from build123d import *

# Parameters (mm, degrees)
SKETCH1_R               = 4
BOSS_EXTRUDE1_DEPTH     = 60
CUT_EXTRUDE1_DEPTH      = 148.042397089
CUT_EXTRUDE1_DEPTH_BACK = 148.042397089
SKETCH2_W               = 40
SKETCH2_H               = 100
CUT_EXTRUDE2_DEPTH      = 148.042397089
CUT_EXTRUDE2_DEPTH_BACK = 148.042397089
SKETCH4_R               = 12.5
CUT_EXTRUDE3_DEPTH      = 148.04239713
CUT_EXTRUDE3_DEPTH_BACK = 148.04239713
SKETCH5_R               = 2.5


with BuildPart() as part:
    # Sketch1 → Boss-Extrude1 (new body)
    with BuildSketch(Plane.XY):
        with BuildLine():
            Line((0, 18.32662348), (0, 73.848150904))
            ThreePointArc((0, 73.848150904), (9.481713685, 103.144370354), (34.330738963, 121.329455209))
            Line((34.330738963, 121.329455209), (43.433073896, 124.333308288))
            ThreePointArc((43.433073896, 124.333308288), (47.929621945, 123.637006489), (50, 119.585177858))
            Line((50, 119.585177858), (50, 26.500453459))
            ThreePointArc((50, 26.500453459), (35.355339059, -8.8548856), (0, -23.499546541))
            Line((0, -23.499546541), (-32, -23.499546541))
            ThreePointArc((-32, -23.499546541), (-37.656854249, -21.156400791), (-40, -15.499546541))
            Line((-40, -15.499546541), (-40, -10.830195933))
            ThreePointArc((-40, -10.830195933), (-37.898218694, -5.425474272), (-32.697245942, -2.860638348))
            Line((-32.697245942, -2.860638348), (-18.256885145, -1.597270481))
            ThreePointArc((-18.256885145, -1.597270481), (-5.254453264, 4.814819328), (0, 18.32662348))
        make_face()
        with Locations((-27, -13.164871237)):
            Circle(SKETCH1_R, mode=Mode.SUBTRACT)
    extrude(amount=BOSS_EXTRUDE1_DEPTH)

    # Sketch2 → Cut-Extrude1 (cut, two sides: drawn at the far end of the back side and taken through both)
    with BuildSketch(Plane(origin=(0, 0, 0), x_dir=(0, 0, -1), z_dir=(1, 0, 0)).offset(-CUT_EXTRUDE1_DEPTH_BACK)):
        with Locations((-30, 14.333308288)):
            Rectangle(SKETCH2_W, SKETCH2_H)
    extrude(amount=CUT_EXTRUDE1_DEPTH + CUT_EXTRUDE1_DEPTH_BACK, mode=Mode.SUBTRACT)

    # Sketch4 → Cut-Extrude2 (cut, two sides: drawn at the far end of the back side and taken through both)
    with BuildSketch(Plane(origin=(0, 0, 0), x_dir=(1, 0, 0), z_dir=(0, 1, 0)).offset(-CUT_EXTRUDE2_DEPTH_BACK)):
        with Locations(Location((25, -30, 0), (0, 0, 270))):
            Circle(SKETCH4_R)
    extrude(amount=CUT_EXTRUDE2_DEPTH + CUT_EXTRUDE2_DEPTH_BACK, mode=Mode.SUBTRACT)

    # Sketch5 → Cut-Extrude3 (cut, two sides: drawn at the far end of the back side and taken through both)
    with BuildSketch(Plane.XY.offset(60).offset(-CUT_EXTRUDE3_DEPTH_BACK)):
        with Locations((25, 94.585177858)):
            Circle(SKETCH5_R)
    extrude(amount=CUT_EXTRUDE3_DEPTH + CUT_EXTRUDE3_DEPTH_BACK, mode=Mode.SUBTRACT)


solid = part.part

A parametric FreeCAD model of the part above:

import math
import FreeCAD as App
import Part
import Sketcher
Q = App.Units.Quantity


def add_polygon(sketch, points):
    """Adds a closed chain of lines whose ends are joined by coincident constraints."""
    first, n = sketch.GeometryCount, len(points)
    for a, b in zip(points, points[1:] + points[:1]):
        sketch.addGeometry(Part.LineSegment(App.Vector(*a, 0), App.Vector(*b, 0)), False)
    for i in range(n):
        sketch.addConstraint(Sketcher.Constraint("Coincident", first + i, 2, first + (i + 1) % n, 1))

doc = App.newDocument("Part")
body = doc.addObject("PartDesign::Body", "Body")

# Sketch on XY plane
sketch1 = body.newObject("Sketcher::SketchObject", "Sketch")
sketch1.AttachmentSupport = (doc.getObject("XY_Plane"), [""])
sketch1.MapMode = "FlatFace"
sketch1.addGeometry([
    Part.LineSegment(App.Vector(0, 73.8, 0), App.Vector(0, 18.3, 0)),  # 0
    Part.ArcOfCircle(Part.Circle(App.Vector(-20, 18.3, 0), App.Vector(0, 0, 1), 20), math.radians(-85), math.radians(0)),  # 1
    Part.LineSegment(App.Vector(-18.3, -1.6, 0), App.Vector(-32.7, -2.9, 0)),  # 2
    Part.ArcOfCircle(Part.Circle(App.Vector(-32, -10.8, 0), App.Vector(0, 0, 1), 8), math.radians(95), math.radians(180)),  # 3
    Part.LineSegment(App.Vector(-40, -10.8, 0), App.Vector(-40, -15.5, 0)),  # 4
    Part.ArcOfCircle(Part.Circle(App.Vector(-32, -15.5, 0), App.Vector(0, 0, 1), 8), math.radians(180), math.radians(270)),  # 5
    Part.LineSegment(App.Vector(-32, -23.5, 0), App.Vector(0, -23.5, 0)),  # 6
    Part.ArcOfCircle(Part.Circle(App.Vector(0, 26.5, 0), App.Vector(0, 0, 1), 50), math.radians(-90), math.radians(0)),  # 7
    Part.LineSegment(App.Vector(50, 26.5, 0), App.Vector(50, 119.6, 0)),  # 8
    Part.ArcOfCircle(Part.Circle(App.Vector(45, 119.6, 0), App.Vector(0, 0, 1), 5), math.radians(0), math.radians(108)),  # 9
    Part.LineSegment(App.Vector(43.4, 124.3, 0), App.Vector(34.3, 121.3, 0)),  # 10
    Part.ArcOfCircle(Part.Circle(App.Vector(50, 73.8, 0), App.Vector(0, 0, 1), 50), math.radians(108), math.radians(180)),  # 11
    Part.Circle(App.Vector(-27, -13.2, 0), App.Vector(0, 0, 1), 4),  # 12
], False)
sketch1.addConstraint([
    Sketcher.Constraint("Tangent", 0, 2, 1, 2),
    Sketcher.Constraint("Tangent", 1, 1, 2, 1),
    Sketcher.Constraint("Tangent", 2, 2, 3, 1),
    Sketcher.Constraint("Tangent", 3, 2, 4, 1),
    Sketcher.Constraint("Tangent", 4, 2, 5, 1),
    Sketcher.Constraint("Tangent", 5, 2, 6, 1),
    Sketcher.Constraint("Tangent", 6, 2, 7, 1),
    Sketcher.Constraint("Tangent", 7, 2, 8, 1),
    Sketcher.Constraint("Tangent", 8, 2, 9, 1),
    Sketcher.Constraint("Tangent", 9, 2, 10, 1),
    Sketcher.Constraint("Tangent", 10, 2, 11, 1),
    Sketcher.Constraint("Tangent", 11, 2, 0, 1),
    Sketcher.Constraint("Vertical", 0),
    Sketcher.Constraint("Vertical", 4),
    Sketcher.Constraint("Horizontal", 6),
    Sketcher.Constraint("Vertical", 8),
    Sketcher.Constraint("Equal", 3, 5),
    Sketcher.Constraint("Equal", 7, 11),
    Sketcher.Constraint("PointOnObject", 7, 3, -2),
    Sketcher.Constraint("PointOnObject", 0, 2, -2),
    Sketcher.Constraint("Diameter", 12, Q("8 mm")),
    Sketcher.Constraint("Radius", 1, Q("20 mm")),
    Sketcher.Constraint("Radius", 3, Q("8 mm")),
    Sketcher.Constraint("Radius", 7, Q("50 mm")),
    Sketcher.Constraint("Radius", 9, Q("5 mm")),
    Sketcher.Constraint("DistanceX", 6, 1, 6, 2, Q("32 mm")),
    Sketcher.Constraint("Angle", 2, Q("-175 deg")),
    Sketcher.Constraint("DistanceX", 12, 3, -1, 1, Q("27 mm")),
    Sketcher.Constraint("DistanceY", 7, 2, 10, 2, Q("94.829002 mm")),
    Sketcher.Constraint("DistanceY", 4, 2, 4, 1, Q("4.669351 mm")),
    Sketcher.Constraint("DistanceY", 12, 3, 1, 1, Q("11.567601 mm")),
    Sketcher.Constraint("DistanceY", 0, 2, 0, 1, Q("55.521527 mm")),
    Sketcher.Constraint("DistanceY", -1, 1, 11, 3, Q("73.848151 mm")),
])
pad1 = body.newObject("PartDesign::Pad", "Pad")
pad1.Profile = sketch1
pad1.Length = 60

# Sketch on YZ plane
sketch2 = body.newObject("Sketcher::SketchObject", "Sketch001")
sketch2.AttachmentSupport = (doc.getObject("YZ_Plane"), [""])
sketch2.MapMode = "FlatFace"
add_polygon(sketch2, [(64, 50), (-36, 50), (-36, 10), (64, 10)])  # lines 0-3
sketch2.addConstraint([
    Sketcher.Constraint("Horizontal", 0),
    Sketcher.Constraint("Vertical", 1),
    Sketcher.Constraint("Horizontal", 2),
    Sketcher.Constraint("Vertical", 3),
    Sketcher.Constraint("DistanceX", 0, 2, 0, 1, Q("100 mm")),
    Sketcher.Constraint("DistanceY", 1, 2, 1, 1, Q("40 mm")),
    Sketcher.Constraint("DistanceY", -1, 1, 0, 2, Q("50 mm")),
    Sketcher.Constraint("DistanceX", 0, 2, -1, 1, Q("35.666692 mm")),
])
pocket1 = body.newObject("PartDesign::Pocket", "Pocket")
pocket1.Profile = sketch2
pocket1.Type = "ThroughAll"
pocket1.Midplane = True

# Sketch on XZ plane
sketch3 = body.newObject("Sketcher::SketchObject", "Sketch002")
sketch3.AttachmentSupport = (doc.getObject("XZ_Plane"), [""])
sketch3.MapMode = "FlatFace"
sketch3.addGeometry(Part.Circle(App.Vector(25, 30, 0), App.Vector(0, 0, 1), 12), False)
sketch3.addConstraint([
    Sketcher.Constraint("Diameter", 0, Q("25 mm")),
    Sketcher.Constraint("DistanceX", -1, 1, 0, 3, Q("25 mm")),
    Sketcher.Constraint("DistanceY", -1, 1, 0, 3, Q("30 mm")),
])
pocket2 = body.newObject("PartDesign::Pocket", "Pocket001")
pocket2.Profile = sketch3
pocket2.Type = "ThroughAll"
pocket2.Midplane = True

# Sketch on XY plane
sketch4 = body.newObject("Sketcher::SketchObject", "Sketch003")
sketch4.AttachmentSupport = (doc.getObject("XY_Plane"), [""])
sketch4.MapMode = "FlatFace"
sketch4.AttachmentOffset = App.Placement(App.Vector(0, 0, 60), App.Rotation())
sketch4.addGeometry(Part.Circle(App.Vector(25, 94.6, 0), App.Vector(0, 0, 1), 2.5), False)
sketch4.addConstraint([
    Sketcher.Constraint("Diameter", 0, Q("5 mm")),
    Sketcher.Constraint("DistanceX", -1, 1, 0, 3, Q("25 mm")),
    Sketcher.Constraint("DistanceY", -1, 1, 0, 3, Q("94.585178 mm")),
])
pocket3 = body.newObject("PartDesign::Pocket", "Pocket002")
pocket3.Profile = sketch4
pocket3.Type = "ThroughAll"
pocket3.Midplane = True

doc.recompute()
